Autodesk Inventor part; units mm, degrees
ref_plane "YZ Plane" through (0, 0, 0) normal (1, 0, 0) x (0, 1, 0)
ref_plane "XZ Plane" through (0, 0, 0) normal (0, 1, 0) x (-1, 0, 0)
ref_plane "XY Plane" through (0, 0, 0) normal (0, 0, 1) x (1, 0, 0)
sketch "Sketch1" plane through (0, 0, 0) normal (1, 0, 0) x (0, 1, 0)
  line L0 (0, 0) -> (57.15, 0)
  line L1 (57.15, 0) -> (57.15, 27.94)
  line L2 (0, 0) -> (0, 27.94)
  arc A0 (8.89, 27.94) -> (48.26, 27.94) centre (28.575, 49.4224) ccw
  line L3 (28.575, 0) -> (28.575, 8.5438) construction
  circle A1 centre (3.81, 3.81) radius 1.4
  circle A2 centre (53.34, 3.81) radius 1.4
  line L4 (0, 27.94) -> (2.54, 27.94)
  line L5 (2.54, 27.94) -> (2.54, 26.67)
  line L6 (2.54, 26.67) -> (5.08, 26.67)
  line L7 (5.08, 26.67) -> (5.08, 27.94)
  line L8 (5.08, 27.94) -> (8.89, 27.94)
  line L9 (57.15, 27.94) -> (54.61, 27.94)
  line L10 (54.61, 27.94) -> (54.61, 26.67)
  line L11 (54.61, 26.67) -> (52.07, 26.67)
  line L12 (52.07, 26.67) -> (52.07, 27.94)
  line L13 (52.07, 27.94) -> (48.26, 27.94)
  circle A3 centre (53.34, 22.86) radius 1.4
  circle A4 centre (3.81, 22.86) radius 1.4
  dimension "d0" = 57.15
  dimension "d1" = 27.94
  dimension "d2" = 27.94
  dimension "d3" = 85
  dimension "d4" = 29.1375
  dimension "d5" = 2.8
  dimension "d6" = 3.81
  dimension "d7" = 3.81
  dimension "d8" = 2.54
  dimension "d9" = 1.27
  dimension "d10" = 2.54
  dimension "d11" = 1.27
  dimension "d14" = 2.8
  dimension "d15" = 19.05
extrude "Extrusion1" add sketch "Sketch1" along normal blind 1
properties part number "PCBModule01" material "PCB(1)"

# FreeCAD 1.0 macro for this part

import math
import FreeCAD as App
import Part
import Sketcher
from FreeCAD import Vector
Q = App.Units.Quantity

doc = App.newDocument("Part")
body = doc.addObject("PartDesign::Body", "Body")

# Sketch on YZ plane
sketch1 = body.newObject("Sketcher::SketchObject", "Sketch")
sketch1.AttachmentSupport = (doc.getObject("YZ_Plane"), [""])
sketch1.MapMode = "FlatFace"
sketch1.addGeometry(Part.LineSegment(Vector(0, 27.9, 0), Vector(0, 0, 0)), False)
sketch1.addGeometry(Part.LineSegment(Vector(0, 0, 0), Vector(57.1, 0, 0)), False)
sketch1.addGeometry(Part.LineSegment(Vector(57.1, 0, 0), Vector(57.1, 27.9, 0)), False)
sketch1.addGeometry(Part.LineSegment(Vector(57.1, 27.9, 0), Vector(54.6, 27.9, 0)), False)
sketch1.addGeometry(Part.LineSegment(Vector(54.6, 27.9, 0), Vector(54.6, 26.7, 0)), False)
sketch1.addGeometry(Part.LineSegment(Vector(54.6, 26.7, 0), Vector(52.1, 26.7, 0)), False)
sketch1.addGeometry(Part.LineSegment(Vector(52.1, 26.7, 0), Vector(52.1, 27.9, 0)), False)
sketch1.addGeometry(Part.LineSegment(Vector(52.1, 27.9, 0), Vector(48.3, 27.9, 0)), False)
sketch1.addGeometry(Part.ArcOfCircle(Part.Circle(Vector(28.6, 49.4, 0), Vector(0, 0, 1), 29.1), math.radians(-133), math.radians(-47)), False)
sketch1.addGeometry(Part.LineSegment(Vector(8.9, 27.9, 0), Vector(5.1, 27.9, 0)), False)
sketch1.addGeometry(Part.LineSegment(Vector(5.1, 27.9, 0), Vector(5.1, 26.7, 0)), False)
sketch1.addGeometry(Part.LineSegment(Vector(5.1, 26.7, 0), Vector(2.5, 26.7, 0)), False)
sketch1.addGeometry(Part.LineSegment(Vector(2.5, 26.7, 0), Vector(2.5, 27.9, 0)), False)
sketch1.addGeometry(Part.LineSegment(Vector(2.5, 27.9, 0), Vector(0, 27.9, 0)), False)
sketch1.addGeometry(Part.Circle(Vector(3.8, 3.8, 0), Vector(0, 0, 1), 1.4), False)
sketch1.addGeometry(Part.Circle(Vector(53.3, 3.8, 0), Vector(0, 0, 1), 1.4), False)
sketch1.addGeometry(Part.Circle(Vector(3.8, 22.9, 0), Vector(0, 0, 1), 1.4), False)
sketch1.addGeometry(Part.Circle(Vector(53.3, 22.9, 0), Vector(0, 0, 1), 1.4), False)
sketch1.addConstraint(Sketcher.Constraint("Coincident", 0, 2, 1, 1))
sketch1.addConstraint(Sketcher.Constraint("Coincident", 1, 2, 2, 1))
sketch1.addConstraint(Sketcher.Constraint("Coincident", 2, 2, 3, 1))
sketch1.addConstraint(Sketcher.Constraint("Coincident", 3, 2, 4, 1))
sketch1.addConstraint(Sketcher.Constraint("Coincident", 4, 2, 5, 1))
sketch1.addConstraint(Sketcher.Constraint("Coincident", 5, 2, 6, 1))
sketch1.addConstraint(Sketcher.Constraint("Coincident", 6, 2, 7, 1))
sketch1.addConstraint(Sketcher.Constraint("Coincident", 7, 2, 8, 2))
sketch1.addConstraint(Sketcher.Constraint("Coincident", 8, 1, 9, 1))
sketch1.addConstraint(Sketcher.Constraint("Coincident", 9, 2, 10, 1))
sketch1.addConstraint(Sketcher.Constraint("Coincident", 10, 2, 11, 1))
sketch1.addConstraint(Sketcher.Constraint("Coincident", 11, 2, 12, 1))
sketch1.addConstraint(Sketcher.Constraint("Coincident", 12, 2, 13, 1))
sketch1.addConstraint(Sketcher.Constraint("Coincident", 13, 2, 0, 1))
sketch1.addConstraint(Sketcher.Constraint("Vertical", 0))
sketch1.addConstraint(Sketcher.Constraint("Horizontal", 1))
sketch1.addConstraint(Sketcher.Constraint("Vertical", 2))
sketch1.addConstraint(Sketcher.Constraint("Horizontal", 3))
sketch1.addConstraint(Sketcher.Constraint("Vertical", 4))
sketch1.addConstraint(Sketcher.Constraint("Horizontal", 5))
sketch1.addConstraint(Sketcher.Constraint("Vertical", 6))
sketch1.addConstraint(Sketcher.Constraint("Horizontal", 7))
sketch1.addConstraint(Sketcher.Constraint("Horizontal", 9))
sketch1.addConstraint(Sketcher.Constraint("Vertical", 10))
sketch1.addConstraint(Sketcher.Constraint("Horizontal", 11))
sketch1.addConstraint(Sketcher.Constraint("Vertical", 12))
sketch1.addConstraint(Sketcher.Constraint("Horizontal", 13))
sketch1.addConstraint(Sketcher.Constraint("Coincident", 0, 2, -1, 1))
sketch1.addConstraint(Sketcher.Constraint("Equal", 14, 15))
sketch1.addConstraint(Sketcher.Constraint("Equal", 15, 16))
sketch1.addConstraint(Sketcher.Constraint("Equal", 16, 17))
sketch1.addConstraint(Sketcher.Constraint("Horizontal", 14, 3, 15, 3))
sketch1.addConstraint(Sketcher.Constraint("Horizontal", 16, 3, 17, 3))
sketch1.addConstraint(Sketcher.Constraint("Horizontal", 3, 2, 6, 2))
sketch1.addConstraint(Sketcher.Constraint("Horizontal", 7, 2, 8, 1))
sketch1.addConstraint(Sketcher.Constraint("Horizontal", 5, 2, 10, 2))
sketch1.addConstraint(Sketcher.Constraint("Horizontal", 9, 2, 12, 2))
sketch1.addConstraint(Sketcher.Constraint("Vertical", 14, 3, 16, 3))
sketch1.addConstraint(Sketcher.Constraint("Vertical", 15, 3, 17, 3))
sketch1.addConstraint(Sketcher.Constraint("Equal", 3, 5))
sketch1.addConstraint(Sketcher.Constraint("Equal", 7, 9))
sketch1.addConstraint(Sketcher.Constraint("Equal", 5, 11))
sketch1.addConstraint(Sketcher.Constraint("Equal", 11, 13))
sketch1.addConstraint(Sketcher.Constraint("DistanceX", 3, 2, 3, 1, Q("0.1 in")))
sketch1.addConstraint(Sketcher.Constraint("DistanceY", 0, 2, 0, 1, Q("1.1 in")))
sketch1.addConstraint(Sketcher.Constraint("DistanceX", 1, 1, 1, 2, Q("2.25 in")))
sketch1.addConstraint(Sketcher.Constraint("DistanceX", 7, 2, 7, 1, Q("0.15 in")))
sketch1.addConstraint(Sketcher.Constraint("DistanceY", 4, 2, 4, 1, Q("0.05 in")))
sketch1.addConstraint(Sketcher.Constraint("Diameter", 14, Q("2.8 mm")))
sketch1.addConstraint(Sketcher.Constraint("DistanceX", -1, 1, 14, 3, Q("0.15 in")))
sketch1.addConstraint(Sketcher.Constraint("DistanceY", -1, 1, 14, 3, Q("0.15 in")))
sketch1.addConstraint(Sketcher.Constraint("Radius", 8, Q("29.1375 mm")))
sketch1.addConstraint(Sketcher.Constraint("DistanceY", 14, 3, 16, 3, Q("0.75 in")))
sketch1.addConstraint(Sketcher.Constraint("DistanceX", 15, 3, 1, 2, Q("0.15 in")))
pad1 = body.newObject("PartDesign::Pad", "Pad")
pad1.Profile = sketch1
pad1.Length = 1

doc.recompute()
